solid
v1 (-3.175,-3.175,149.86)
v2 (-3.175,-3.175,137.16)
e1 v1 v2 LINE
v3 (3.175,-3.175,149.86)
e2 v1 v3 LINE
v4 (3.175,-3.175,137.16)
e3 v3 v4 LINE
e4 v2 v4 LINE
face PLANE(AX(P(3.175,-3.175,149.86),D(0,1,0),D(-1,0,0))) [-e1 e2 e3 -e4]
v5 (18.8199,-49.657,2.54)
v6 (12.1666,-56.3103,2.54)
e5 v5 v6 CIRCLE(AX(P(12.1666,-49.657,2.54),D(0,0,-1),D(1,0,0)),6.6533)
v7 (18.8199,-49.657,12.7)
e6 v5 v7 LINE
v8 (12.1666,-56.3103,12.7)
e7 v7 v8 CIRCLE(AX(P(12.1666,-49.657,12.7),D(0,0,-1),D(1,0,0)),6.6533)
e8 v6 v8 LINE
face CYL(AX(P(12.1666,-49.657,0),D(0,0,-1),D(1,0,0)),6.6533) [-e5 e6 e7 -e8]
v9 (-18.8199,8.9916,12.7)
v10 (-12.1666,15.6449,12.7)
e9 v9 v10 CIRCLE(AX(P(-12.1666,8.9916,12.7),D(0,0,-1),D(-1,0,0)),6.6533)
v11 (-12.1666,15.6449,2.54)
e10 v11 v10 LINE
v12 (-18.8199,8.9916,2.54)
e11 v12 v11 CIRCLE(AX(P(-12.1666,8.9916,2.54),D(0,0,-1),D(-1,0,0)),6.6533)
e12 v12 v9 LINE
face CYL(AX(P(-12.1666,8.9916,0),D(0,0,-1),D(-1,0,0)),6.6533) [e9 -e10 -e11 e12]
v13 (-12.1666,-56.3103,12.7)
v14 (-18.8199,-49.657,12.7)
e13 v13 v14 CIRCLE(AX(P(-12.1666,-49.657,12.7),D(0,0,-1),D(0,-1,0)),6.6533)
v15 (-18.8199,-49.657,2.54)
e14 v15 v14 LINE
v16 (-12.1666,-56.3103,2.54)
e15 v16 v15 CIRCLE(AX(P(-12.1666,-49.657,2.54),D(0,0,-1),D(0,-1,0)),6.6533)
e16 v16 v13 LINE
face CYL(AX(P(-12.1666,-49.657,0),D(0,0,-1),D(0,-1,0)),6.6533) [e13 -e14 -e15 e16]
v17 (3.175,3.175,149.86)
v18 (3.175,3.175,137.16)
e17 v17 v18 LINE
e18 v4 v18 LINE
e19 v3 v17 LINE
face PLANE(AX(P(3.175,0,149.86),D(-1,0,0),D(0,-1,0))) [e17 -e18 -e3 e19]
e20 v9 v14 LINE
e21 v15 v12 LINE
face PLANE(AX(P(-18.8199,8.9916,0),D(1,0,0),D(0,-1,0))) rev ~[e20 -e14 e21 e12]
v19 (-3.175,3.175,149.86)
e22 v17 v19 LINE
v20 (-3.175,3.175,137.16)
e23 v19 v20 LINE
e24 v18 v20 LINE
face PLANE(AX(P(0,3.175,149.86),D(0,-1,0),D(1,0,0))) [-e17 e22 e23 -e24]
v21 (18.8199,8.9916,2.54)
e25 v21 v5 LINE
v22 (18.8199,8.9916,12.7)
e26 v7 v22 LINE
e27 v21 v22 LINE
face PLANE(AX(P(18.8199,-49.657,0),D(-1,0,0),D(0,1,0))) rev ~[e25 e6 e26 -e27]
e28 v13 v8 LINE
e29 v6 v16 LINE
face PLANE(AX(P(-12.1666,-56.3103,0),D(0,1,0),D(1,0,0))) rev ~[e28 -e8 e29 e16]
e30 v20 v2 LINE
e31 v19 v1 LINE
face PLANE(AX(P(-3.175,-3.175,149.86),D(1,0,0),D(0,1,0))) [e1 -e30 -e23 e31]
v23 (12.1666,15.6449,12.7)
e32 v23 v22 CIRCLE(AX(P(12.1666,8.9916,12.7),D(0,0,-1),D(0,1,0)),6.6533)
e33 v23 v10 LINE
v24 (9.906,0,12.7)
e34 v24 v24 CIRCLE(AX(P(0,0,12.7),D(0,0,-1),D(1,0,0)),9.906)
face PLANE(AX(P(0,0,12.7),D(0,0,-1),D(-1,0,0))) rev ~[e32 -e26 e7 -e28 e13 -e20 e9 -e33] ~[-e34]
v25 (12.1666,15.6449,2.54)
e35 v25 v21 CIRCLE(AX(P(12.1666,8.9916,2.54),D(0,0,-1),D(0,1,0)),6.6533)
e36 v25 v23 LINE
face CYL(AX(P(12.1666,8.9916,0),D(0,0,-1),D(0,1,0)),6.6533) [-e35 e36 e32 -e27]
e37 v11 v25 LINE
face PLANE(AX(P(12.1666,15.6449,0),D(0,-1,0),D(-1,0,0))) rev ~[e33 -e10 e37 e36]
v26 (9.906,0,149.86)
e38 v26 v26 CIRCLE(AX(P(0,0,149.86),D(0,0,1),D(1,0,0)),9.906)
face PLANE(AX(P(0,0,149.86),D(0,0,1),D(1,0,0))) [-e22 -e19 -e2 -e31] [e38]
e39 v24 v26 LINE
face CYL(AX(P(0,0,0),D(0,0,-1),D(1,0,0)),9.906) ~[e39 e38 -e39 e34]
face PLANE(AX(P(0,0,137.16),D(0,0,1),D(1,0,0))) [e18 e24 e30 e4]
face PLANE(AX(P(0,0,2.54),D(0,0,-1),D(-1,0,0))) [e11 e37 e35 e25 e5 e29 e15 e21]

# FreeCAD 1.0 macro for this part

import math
import FreeCAD as App
import Part
import Sketcher
from FreeCAD import Vector
Q = App.Units.Quantity


def edges_at(feature, points):
    """Names of the edges that pass closest to the given points."""
    edges = feature.Shape.Edges
    near = lambda p: min(range(len(edges)), key=lambda i: edges[i].distToShape(Part.Vertex(*p))[0])
    return sorted({f"Edge{near(p) + 1}" for p in points})

doc = App.newDocument("Part")
body = doc.addObject("PartDesign::Body", "Body")

sketch1 = body.newObject("Sketcher::SketchObject", "Sketch")
sketch1.AttachmentSupport = (doc.getObject("XY_Plane"), [""])
sketch1.MapMode = "FlatFace"
sketch1.addGeometry(Part.Circle(Vector(0, 0, 0), Vector(0, 0, 1), 9.906), False)
sketch1.addConstraint([
    Sketcher.Constraint("Coincident", 0, 3, -1, 1),
    Sketcher.Constraint("Diameter", 0, Q("0.78 in")),
])
pad1 = body.newObject("PartDesign::Pad", "Pad")
pad1.Profile = sketch1
pad1.Length = Q("5.9 in")

sketch2 = body.newObject("Sketcher::SketchObject", "Sketch001")
sketch2.AttachmentSupport = (doc.getObject("XY_Plane"), [""])
sketch2.MapMode = "FlatFace"
sketch2.AttachmentOffset = App.Placement(Vector(0, 0, 5.9 * 25.4), App.Rotation())
sketch2.addGeometry([
    Part.LineSegment(Vector(3.175, -3.175, 0), Vector(3.175, 3.175, 0)),
    Part.LineSegment(Vector(3.175, 3.175, 0), Vector(-3.175, 3.175, 0)),
    Part.LineSegment(Vector(-3.175, 3.175, 0), Vector(-3.175, -3.175, 0)),
    Part.LineSegment(Vector(-3.175, -3.175, 0), Vector(3.175, -3.175, 0)),
], False)
sketch2.addConstraint([
    Sketcher.Constraint("Coincident", 0, 2, 1, 1),
    Sketcher.Constraint("Coincident", 1, 2, 2, 1),
    Sketcher.Constraint("Coincident", 2, 2, 3, 1),
    Sketcher.Constraint("Coincident", 3, 2, 0, 1),
    Sketcher.Constraint("Vertical", 0),
    Sketcher.Constraint("Horizontal", 1),
    Sketcher.Constraint("Vertical", 2),
    Sketcher.Constraint("Horizontal", 3),
    Sketcher.Constraint("Symmetric", 0, 2, 2, 2, -1, 1),
    Sketcher.Constraint("Equal", 3, 0),
    Sketcher.Constraint("DistanceX", 1, 2, 1, 1, Q("0.25 in")),
])
pocket1 = body.newObject("PartDesign::Pocket", "Pocket")
pocket1.Profile = sketch2
pocket1.Length = Q("0.5 in")

sketch3 = body.newObject("Sketcher::SketchObject", "Sketch002")
sketch3.AttachmentSupport = (doc.getObject("XY_Plane"), [""])
sketch3.MapMode = "FlatFace"
sketch3.addGeometry([
    Part.LineSegment(Vector(-25.4, 25.4, 0), Vector(25.4, 25.4, 0)),
    Part.LineSegment(Vector(25.4, 25.4, 0), Vector(25.4, -25.4, 0)),
    Part.LineSegment(Vector(25.4, -25.4, 0), Vector(-25.4, -25.4, 0)),
    Part.LineSegment(Vector(-25.4, -25.4, 0), Vector(-25.4, 25.4, 0)),
    Part.ArcOfCircle(Part.Circle(Vector(0, 0, 0), Vector(0, 0, 1), 9.906), math.radians(90), math.radians(360)),
    Part.LineSegment(Vector(9.906, 0, 0), Vector(0, 0, 0)),
    Part.LineSegment(Vector(0, 0, 0), Vector(0, 9.906, 0)),
], False)
sketch3.addConstraint([
    Sketcher.Constraint("Coincident", 0, 2, 1, 1),
    Sketcher.Constraint("Coincident", 1, 2, 2, 1),
    Sketcher.Constraint("Coincident", 2, 2, 3, 1),
    Sketcher.Constraint("Coincident", 3, 2, 0, 1),
    Sketcher.Constraint("Coincident", 4, 2, 5, 1),
    Sketcher.Constraint("Coincident", 5, 2, 6, 1),
    Sketcher.Constraint("Coincident", 6, 2, 4, 1),
    Sketcher.Constraint("Horizontal", 0),
    Sketcher.Constraint("Vertical", 1),
    Sketcher.Constraint("Horizontal", 2),
    Sketcher.Constraint("Vertical", 3),
    Sketcher.Constraint("Horizontal", 5),
    Sketcher.Constraint("Vertical", 6),
    Sketcher.Constraint("Coincident", 4, 3, -1, 1),
    Sketcher.Constraint("Coincident", 5, 2, -1, 1),
    Sketcher.Constraint("Symmetric", 0, 2, 2, 2, -1, 1),
    Sketcher.Constraint("Equal", 2, 1),
    Sketcher.Constraint("DistanceX", 0, 1, 0, 2, Q("2 in")),
    Sketcher.Constraint("Radius", 4, Q("0.39 in")),
])
pad2 = body.newObject("PartDesign::Pad", "Pad001")
pad2.Profile = sketch3
pad2.Length = Q("0.5 in")

sketch4 = body.newObject("Sketcher::SketchObject", "Sketch003")
sketch4.AttachmentSupport = (doc.getObject("XZ_Plane"), [""])
sketch4.MapMode = "FlatFace"
sketch4.AttachmentOffset = App.Placement(Vector(0, 0, -1 * 25.4), App.Rotation())
sketch4.addGeometry([
    Part.LineSegment(Vector(-25.4, 0, 0), Vector(-25.4, 12.7, 0)),
    Part.LineSegment(Vector(-25.4, 12.7, 0), Vector(25.4, 12.7, 0)),
    Part.LineSegment(Vector(25.4, 12.7, 0), Vector(25.4, 0, 0)),
    Part.LineSegment(Vector(25.4, 0, 0), Vector(-25.4, 0, 0)),
], False)
sketch4.addConstraint([
    Sketcher.Constraint("Coincident", 0, 2, 1, 1),
    Sketcher.Constraint("Coincident", 1, 2, 2, 1),
    Sketcher.Constraint("Coincident", 2, 2, 3, 1),
    Sketcher.Constraint("Coincident", 3, 2, 0, 1),
    Sketcher.Constraint("Vertical", 0),
    Sketcher.Constraint("Horizontal", 1),
    Sketcher.Constraint("Vertical", 2),
    Sketcher.Constraint("Horizontal", 3),
    Sketcher.Constraint("Symmetric", 2, 2, 3, 2, -1, 1),
    Sketcher.Constraint("DistanceX", 1, 1, 1, 2, Q("2 in")),
    Sketcher.Constraint("DistanceY", 0, 1, 0, 2, Q("0.5 in")),
])
pocket2 = body.newObject("PartDesign::Pocket", "Pocket001")
pocket2.Profile = sketch4
pocket2.Length = Q("0.25 in")
pocket2.Reversed = True

sketch5 = body.newObject("Sketcher::SketchObject", "Sketch004")
sketch5.AttachmentSupport = (doc.getObject("XY_Plane"), [""])
sketch5.MapMode = "FlatFace"
sketch5.addGeometry([
    Part.LineSegment(Vector(-25.4, -31.75, 0), Vector(-25.4, -25.4, 0)),
    Part.LineSegment(Vector(-25.4, -25.4, 0), Vector(25.4, -25.4, 0)),
    Part.LineSegment(Vector(25.4, -25.4, 0), Vector(25.4, -31.75, 0)),
    Part.LineSegment(Vector(25.4, -31.75, 0), Vector(-25.4, -31.75, 0)),
], False)
sketch5.addConstraint([
    Sketcher.Constraint("Coincident", 0, 2, 1, 1),
    Sketcher.Constraint("Coincident", 1, 2, 2, 1),
    Sketcher.Constraint("Coincident", 2, 2, 3, 1),
    Sketcher.Constraint("Coincident", 3, 2, 0, 1),
    Sketcher.Constraint("Vertical", 0),
    Sketcher.Constraint("Horizontal", 1),
    Sketcher.Constraint("Vertical", 2),
    Sketcher.Constraint("Horizontal", 3),
    Sketcher.Constraint("DistanceX", 1, 1, 1, 2, Q("2 in")),
    Sketcher.Constraint("DistanceX", 0, 2, -1, 1, Q("1 in")),
    Sketcher.Constraint("DistanceY", 0, 2, -1, 1, Q("1 in")),
    Sketcher.Constraint("DistanceY", 0, 1, 0, 2, Q("0.25 in")),
])
pad3 = body.newObject("PartDesign::Pad", "Pad002")
pad3.Profile = sketch5
pad3.Length = Q("0.5 in")

sketch6 = body.newObject("Sketcher::SketchObject", "Sketch005")
sketch6.AttachmentSupport = (doc.getObject("XY_Plane"), [""])
sketch6.MapMode = "FlatFace"
sketch6.AttachmentOffset = App.Placement(Vector(0, 0, 0.5 * 25.4), App.Rotation())
sketch6.addGeometry([
    Part.LineSegment(Vector(19.7866, 16.6116, 0), Vector(-19.7866, 16.6116, 0)),
    Part.LineSegment(Vector(-19.7866, 16.6116, 0), Vector(-19.7866, -57.277, 0)),
    Part.LineSegment(Vector(-19.7866, -57.277, 0), Vector(19.7866, -57.277, 0)),
    Part.LineSegment(Vector(19.7866, -57.277, 0), Vector(19.7866, 16.6116, 0)),
    Part.ArcOfCircle(Part.Circle(Vector(0, 0, 0), Vector(0, 0, 1), 9.906), math.radians(-90), math.radians(90)),
    Part.LineSegment(Vector(0, -9.906, 0), Vector(0, 9.906, 0)),
], False)
sketch6.addConstraint([
    Sketcher.Constraint("Coincident", 0, 2, 1, 1),
    Sketcher.Constraint("Coincident", 1, 2, 2, 1),
    Sketcher.Constraint("Coincident", 2, 2, 3, 1),
    Sketcher.Constraint("Coincident", 3, 2, 0, 1),
    Sketcher.Constraint("Coincident", 4, 1, 5, 1),
    Sketcher.Constraint("Coincident", 5, 2, 4, 2),
    Sketcher.Constraint("Horizontal", 0),
    Sketcher.Constraint("Vertical", 1),
    Sketcher.Constraint("Horizontal", 2),
    Sketcher.Constraint("Vertical", 3),
    Sketcher.Constraint("Vertical", 5),
    Sketcher.Constraint("Coincident", 4, 3, -1, 1),
    Sketcher.Constraint("PointOnObject", 4, 1, -2),
    Sketcher.Constraint("DistanceX", 0, 2, 0, 1, Q("1.558 in")),
    Sketcher.Constraint("DistanceY", 1, 2, 1, 1, Q("2.909 in")),
    Sketcher.Constraint("Radius", 4, Q("0.39 in")),
    Sketcher.Constraint("DistanceX", 0, 2, -1, 1, Q("0.779 in")),
    Sketcher.Constraint("DistanceY", 5, 2, 0, 2, Q("0.264 in")),
])
pad4 = body.newObject("PartDesign::Pad", "Pad003")
pad4.Profile = sketch6
pad4.Length = Q("2 in")
pad4.Reversed = True

sketch7 = body.newObject("Sketcher::SketchObject", "Sketch006")
sketch7.AttachmentSupport = (doc.getObject("XY_Plane"), [""])
sketch7.MapMode = "FlatFace"
sketch7.addGeometry([
    Part.LineSegment(Vector(25.4, -31.75, 0), Vector(19.7866, -31.75, 0)),
    Part.LineSegment(Vector(19.7866, -31.75, 0), Vector(19.7866, 16.6116, 0)),
    Part.LineSegment(Vector(19.7866, 16.6116, 0), Vector(-19.7866, 16.6116, 0)),
    Part.LineSegment(Vector(-19.7866, 16.6116, 0), Vector(-19.7866, -31.75, 0)),
    Part.LineSegment(Vector(-19.7866, -31.75, 0), Vector(-25.4, -31.75, 0)),
    Part.LineSegment(Vector(-25.4, -31.75, 0), Vector(-25.4, 19.05, 0)),
    Part.LineSegment(Vector(-25.4, 19.05, 0), Vector(25.4, 19.05, 0)),
    Part.LineSegment(Vector(25.4, 19.05, 0), Vector(25.4, -31.75, 0)),
], False)
sketch7.addConstraint([
    Sketcher.Constraint("Coincident", 0, 2, 1, 1),
    Sketcher.Constraint("Coincident", 1, 2, 2, 1),
    Sketcher.Constraint("Coincident", 2, 2, 3, 1),
    Sketcher.Constraint("Coincident", 3, 2, 4, 1),
    Sketcher.Constraint("Coincident", 4, 2, 5, 1),
    Sketcher.Constraint("Coincident", 5, 2, 6, 1),
    Sketcher.Constraint("Coincident", 6, 2, 7, 1),
    Sketcher.Constraint("Coincident", 7, 2, 0, 1),
    Sketcher.Constraint("Horizontal", 0),
    Sketcher.Constraint("Vertical", 1),
    Sketcher.Constraint("Horizontal", 2),
    Sketcher.Constraint("Vertical", 3),
    Sketcher.Constraint("Horizontal", 4),
    Sketcher.Constraint("Vertical", 5),
    Sketcher.Constraint("Horizontal", 6),
    Sketcher.Constraint("Vertical", 7),
    Sketcher.Constraint("Symmetric", 0, 2, 3, 2, -2),
    Sketcher.Constraint("Equal", 0, 4),
    Sketcher.Constraint("Equal", 6, 5),
    Sketcher.Constraint("DistanceX", 6, 1, 6, 2, Q("2 in")),
    Sketcher.Constraint("DistanceX", 0, 2, 0, 1, Q("0.221 in")),
    Sketcher.Constraint("DistanceY", 1, 1, 1, 2, Q("1.904 in")),
    Sketcher.Constraint("DistanceY", 0, 2, -1, 1, Q("1.25 in")),
])
pocket3 = body.newObject("PartDesign::Pocket", "Pocket002")
pocket3.Profile = sketch7
pocket3.Length = Q("2 in")
pocket3.Reversed = True
doc.recompute()

fillet = body.newObject("PartDesign::Fillet", "Fillet")
fillet.Base = (pocket3, edges_at(pocket3, [
    (19.787, 16.612, -12.7),
    (-19.787, 16.612, -12.7),
    (19.787, -57.277, -12.7),
    (-19.787, -57.277, -12.7),
]))
fillet.Radius = Q("0.25 in")

sketch8 = body.newObject("Sketcher::SketchObject", "Sketch007")
sketch8.AttachmentSupport = (doc.getObject("XY_Plane"), [""])
sketch8.MapMode = "FlatFace"
sketch8.AttachmentOffset = App.Placement(Vector(0, 0, -1.5 * 25.4), App.Rotation())
sketch8.addGeometry([
    Part.LineSegment(Vector(13.4366, -57.277, 0), Vector(-13.4366, -57.277, 0)),
    Part.ArcOfCircle(Part.Circle(Vector(-13.4366, -50.927, 0), Vector(0, 0, 1), 6.35), math.radians(180), math.radians(270)),
    Part.LineSegment(Vector(-19.7866, -50.927, 0), Vector(-19.7866, 10.2616, 0)),
    Part.ArcOfCircle(Part.Circle(Vector(-13.4366, 10.2616, 0), Vector(0, 0, 1), 6.35), math.radians(90), math.radians(180)),
    Part.LineSegment(Vector(-13.4366, 16.6116, 0), Vector(13.4366, 16.6116, 0)),
    Part.ArcOfCircle(Part.Circle(Vector(13.4366, 10.2616, 0), Vector(0, 0, 1), 6.35), math.radians(0), math.radians(90)),
    Part.LineSegment(Vector(19.7866, 10.2616, 0), Vector(19.7866, -50.927, 0)),
    Part.ArcOfCircle(Part.Circle(Vector(13.4366, -50.927, 0), Vector(0, 0, 1), 6.35), math.radians(-90), math.radians(0)),
    Part.LineSegment(Vector(0, 9.906, 0), Vector(0, -9.906, 0)),
    Part.ArcOfCircle(Part.Circle(Vector(0, 0, 0), Vector(0, 0, 1), 9.906), math.radians(-90), math.radians(90)),
], False)
sketch8.addConstraint([
    Sketcher.Constraint("Tangent", 0, 2, 1, 2),
    Sketcher.Constraint("Tangent", 1, 1, 2, 1),
    Sketcher.Constraint("Tangent", 2, 2, 3, 2),
    Sketcher.Constraint("Tangent", 3, 1, 4, 1),
    Sketcher.Constraint("Tangent", 4, 2, 5, 2),
    Sketcher.Constraint("Tangent", 5, 1, 6, 1),
    Sketcher.Constraint("Tangent", 6, 2, 7, 2),
    Sketcher.Constraint("Tangent", 7, 1, 0, 1),
    Sketcher.Constraint("Coincident", 8, 1, 9, 2),
    Sketcher.Constraint("Coincident", 9, 1, 8, 2),
    Sketcher.Constraint("Horizontal", 0),
    Sketcher.Constraint("Vertical", 2),
    Sketcher.Constraint("Horizontal", 4),
    Sketcher.Constraint("Vertical", 6),
    Sketcher.Constraint("Vertical", 8),
    Sketcher.Constraint("Coincident", 9, 3, -1, 1),
    Sketcher.Constraint("Equal", 1, 3),
    Sketcher.Constraint("Equal", 3, 5),
    Sketcher.Constraint("Equal", 5, 7),
    Sketcher.Constraint("PointOnObject", 8, 1, -2),
    Sketcher.Constraint("Radius", 1, Q("0.25 in")),
    Sketcher.Constraint("Radius", 9, Q("0.39 in")),
    Sketcher.Constraint("DistanceX", 0, 2, 0, 1, Q("1.058 in")),
    Sketcher.Constraint("DistanceY", 2, 1, 2, 2, Q("2.409 in")),
    Sketcher.Constraint("DistanceX", 1, 3, -1, 1, Q("0.529 in")),
    Sketcher.Constraint("DistanceY", 1, 3, -1, 1, Q("2.005 in")),
])
pocket4 = body.newObject("PartDesign::Pocket", "Pocket003")
pocket4.Profile = sketch8
pocket4.Length = Q("1 in")
pocket4.Reversed = True

sketch9 = body.newObject("Sketcher::SketchObject", "Sketch008")
sketch9.AttachmentSupport = (doc.getObject("XY_Plane"), [""])
sketch9.MapMode = "FlatFace"
sketch9.AttachmentOffset = App.Placement(Vector(0, 0, -0.5 * 25.4), App.Rotation())
sketch9.addGeometry([
    Part.LineSegment(Vector(0, -9.906, 0), Vector(0, 9.906, 0)),
    Part.ArcOfCircle(Part.Circle(Vector(0, 0, 0), Vector(0, 0, 1), 9.906), math.radians(-90), math.radians(90)),
], False)
sketch9.addConstraint([
    Sketcher.Constraint("Coincident", 0, 1, 1, 1),
    Sketcher.Constraint("Coincident", 1, 2, 0, 2),
    Sketcher.Constraint("Vertical", 0),
    Sketcher.Constraint("Coincident", 1, 3, -1, 1),
    Sketcher.Constraint("PointOnObject", 0, 1, -2),
    Sketcher.Constraint("Radius", 1, Q("0.39 in")),
])
pad5 = body.newObject("PartDesign::Pad", "Pad004")
pad5.Profile = sketch9
pad5.Length = Q("1 in")

sketch10 = body.newObject("Sketcher::SketchObject", "Sketch009")
sketch10.AttachmentSupport = (doc.getObject("XY_Plane"), [""])
sketch10.MapMode = "FlatFace"
sketch10.AttachmentOffset = App.Placement(Vector(0, 0, -0.5 * 25.4), App.Rotation())
sketch10.addGeometry([
    Part.LineSegment(Vector(-19.7866, -50.927, 0), Vector(-19.7866, 10.2616, 0)),
    Part.ArcOfCircle(Part.Circle(Vector(-13.4366, 10.2616, 0), Vector(0, 0, 1), 6.35), math.radians(90), math.radians(180)),
    Part.LineSegment(Vector(-13.4366, 16.6116, 0), Vector(13.4366, 16.6116, 0)),
    Part.ArcOfCircle(Part.Circle(Vector(13.4366, 10.2616, 0), Vector(0, 0, 1), 6.35), math.radians(0), math.radians(90)),
    Part.LineSegment(Vector(19.7866, 10.2616, 0), Vector(19.7866, -50.927, 0)),
    Part.ArcOfCircle(Part.Circle(Vector(13.4366, -50.927, 0), Vector(0, 0, 1), 6.35), math.radians(-90), math.radians(0)),
    Part.LineSegment(Vector(13.4366, -57.277, 0), Vector(-13.4366, -57.277, 0)),
    Part.ArcOfCircle(Part.Circle(Vector(-13.4366, -50.927, 0), Vector(0, 0, 1), 6.35), math.radians(180), math.radians(270)),
], False)
sketch10.addConstraint([
    Sketcher.Constraint("Tangent", 0, 2, 1, 2),
    Sketcher.Constraint("Tangent", 1, 1, 2, 1),
    Sketcher.Constraint("Tangent", 2, 2, 3, 2),
    Sketcher.Constraint("Tangent", 3, 1, 4, 1),
    Sketcher.Constraint("Tangent", 4, 2, 5, 2),
    Sketcher.Constraint("Tangent", 5, 1, 6, 1),
    Sketcher.Constraint("Tangent", 6, 2, 7, 2),
    Sketcher.Constraint("Tangent", 7, 1, 0, 1),
    Sketcher.Constraint("Vertical", 0),
    Sketcher.Constraint("Horizontal", 2),
    Sketcher.Constraint("Vertical", 4),
    Sketcher.Constraint("Horizontal", 6),
    Sketcher.Constraint("Equal", 1, 3),
    Sketcher.Constraint("Equal", 3, 5),
    Sketcher.Constraint("Equal", 5, 7),
    Sketcher.Constraint("Radius", 1, Q("0.25 in")),
    Sketcher.Constraint("DistanceX", 2, 1, 2, 2, Q("1.058 in")),
    Sketcher.Constraint("DistanceY", 0, 1, 0, 2, Q("2.409 in")),
    Sketcher.Constraint("DistanceX", 1, 3, -1, 1, Q("0.529 in")),
    Sketcher.Constraint("DistanceY", -1, 1, 1, 3, Q("0.404 in")),
])
pocket5 = body.newObject("PartDesign::Pocket", "Pocket004")
pocket5.Profile = sketch10
pocket5.Length = Q("0.5 in")
pocket5.Reversed = True

sketch11 = body.newObject("Sketcher::SketchObject", "Sketch010")
sketch11.AttachmentSupport = (doc.getObject("XY_Plane"), [""])
sketch11.MapMode = "FlatFace"
sketch11.addGeometry([
    Part.LineSegment(Vector(-19.7866, 16.6116, 0), Vector(19.7866, 16.6116, 0)),
    Part.LineSegment(Vector(19.7866, 16.6116, 0), Vector(19.7866, -57.277, 0)),
    Part.LineSegment(Vector(19.7866, -57.277, 0), Vector(-19.7866, -57.277, 0)),
    Part.LineSegment(Vector(-19.7866, -57.277, 0), Vector(-19.7866, 16.6116, 0)),
], False)
sketch11.addConstraint([
    Sketcher.Constraint("Coincident", 0, 2, 1, 1),
    Sketcher.Constraint("Coincident", 1, 2, 2, 1),
    Sketcher.Constraint("Coincident", 2, 2, 3, 1),
    Sketcher.Constraint("Coincident", 3, 2, 0, 1),
    Sketcher.Constraint("Horizontal", 0),
    Sketcher.Constraint("Vertical", 1),
    Sketcher.Constraint("Horizontal", 2),
    Sketcher.Constraint("Vertical", 3),
    Sketcher.Constraint("DistanceX", 0, 1, 0, 2, Q("1.558 in")),
    Sketcher.Constraint("DistanceY", 1, 2, 1, 1, Q("2.909 in")),
    Sketcher.Constraint("DistanceX", -1, 1, 0, 2, Q("0.779 in")),
    Sketcher.Constraint("DistanceY", -1, 1, 0, 2, Q("0.654 in")),
])
pad6 = body.newObject("PartDesign::Pad", "Pad005")
pad6.Profile = sketch11
pad6.Length = Q("0.5 in")
doc.recompute()

fillet2 = body.newObject("PartDesign::Fillet", "Fillet001")
fillet2.Base = (pad6, edges_at(pad6, [
    (19.787, 16.612, 6.35),
    (-19.787, 16.612, 6.35),
    (-19.787, -57.277, 6.35),
    (19.787, -57.277, 6.35),
]))
fillet2.Radius = Q("0.3 in")

sketch12 = body.newObject("Sketcher::SketchObject", "Sketch011")
sketch12.AttachmentSupport = (doc.getObject("XY_Plane"), [""])
sketch12.MapMode = "FlatFace"
sketch12.addGeometry([
    Part.LineSegment(Vector(19.7866, 8.9916, 0), Vector(19.7866, -49.657, 0)),
    Part.ArcOfCircle(Part.Circle(Vector(12.1666, -49.657, 0), Vector(0, 0, 1), 7.62), math.radians(-90), math.radians(0)),
    Part.LineSegment(Vector(12.1666, -57.277, 0), Vector(-12.1666, -57.277, 0)),
    Part.ArcOfCircle(Part.Circle(Vector(-12.1666, -49.657, 0), Vector(0, 0, 1), 7.62), math.radians(180), math.radians(270)),
    Part.LineSegment(Vector(-19.7866, -49.657, 0), Vector(-19.7866, 8.9916, 0)),
    Part.ArcOfCircle(Part.Circle(Vector(-12.1666, 8.9916, 0), Vector(0, 0, 1), 7.62), math.radians(90), math.radians(180)),
    Part.LineSegment(Vector(-12.1666, 16.6116, 0), Vector(12.1666, 16.6116, 0)),
    Part.ArcOfCircle(Part.Circle(Vector(12.1666, 8.9916, 0), Vector(0, 0, 1), 7.62), math.radians(0), math.radians(90)),
    Part.ArcOfCircle(Part.Circle(Vector(-12.1666, 8.9916, 0), Vector(0, 0, 1), 6.6533), math.radians(90), math.radians(180)),
    Part.LineSegment(Vector(-18.8199, 8.9916, 0), Vector(-18.8199, -49.657, 0)),
    Part.ArcOfCircle(Part.Circle(Vector(-12.1666, -49.657, 0), Vector(0, 0, 1), 6.6533), math.radians(180), math.radians(270)),
    Part.LineSegment(Vector(-12.1666, -56.3103, 0), Vector(12.1666, -56.3103, 0)),
    Part.ArcOfCircle(Part.Circle(Vector(12.1666, -49.657, 0), Vector(0, 0, 1), 6.6533), math.radians(-90), math.radians(0)),
    Part.LineSegment(Vector(18.8199, -49.657, 0), Vector(18.8199, 8.9916, 0)),
    Part.ArcOfCircle(Part.Circle(Vector(12.1666, 8.9916, 0), Vector(0, 0, 1), 6.6533), math.radians(0), math.radians(90)),
    Part.LineSegment(Vector(12.1666, 15.6449, 0), Vector(-12.1666, 15.6449, 0)),
], False)
sketch12.addConstraint([
    Sketcher.Constraint("Tangent", 0, 2, 1, 2),
    Sketcher.Constraint("Tangent", 1, 1, 2, 1),
    Sketcher.Constraint("Tangent", 2, 2, 3, 2),
    Sketcher.Constraint("Tangent", 3, 1, 4, 1),
    Sketcher.Constraint("Tangent", 4, 2, 5, 2),
    Sketcher.Constraint("Tangent", 5, 1, 6, 1),
    Sketcher.Constraint("Tangent", 6, 2, 7, 2),
    Sketcher.Constraint("Tangent", 7, 1, 0, 1),
    Sketcher.Constraint("Tangent", 8, 2, 9, 1),
    Sketcher.Constraint("Tangent", 9, 2, 10, 1),
    Sketcher.Constraint("Tangent", 10, 2, 11, 1),
    Sketcher.Constraint("Tangent", 11, 2, 12, 1),
    Sketcher.Constraint("Tangent", 12, 2, 13, 1),
    Sketcher.Constraint("Tangent", 13, 2, 14, 1),
    Sketcher.Constraint("Tangent", 14, 2, 15, 1),
    Sketcher.Constraint("Tangent", 15, 2, 8, 1),
    Sketcher.Constraint("Vertical", 0),
    Sketcher.Constraint("Horizontal", 2),
    Sketcher.Constraint("Vertical", 4),
    Sketcher.Constraint("Horizontal", 6),
    Sketcher.Constraint("Vertical", 9),
    Sketcher.Constraint("Horizontal", 11),
    Sketcher.Constraint("Vertical", 13),
    Sketcher.Constraint("Horizontal", 15),
    Sketcher.Constraint("Coincident", 8, 3, 5, 3),
    Sketcher.Constraint("Coincident", 10, 3, 3, 3),
    Sketcher.Constraint("Coincident", 12, 3, 1, 3),
    Sketcher.Constraint("Equal", 1, 3),
    Sketcher.Constraint("Equal", 3, 5),
    Sketcher.Constraint("Equal", 5, 7),
    Sketcher.Constraint("Equal", 12, 14),
    Sketcher.Constraint("Radius", 1, Q("0.3 in")),
    Sketcher.Constraint("DistanceX", 2, 2, 2, 1, Q("0.958 in")),
    Sketcher.Constraint("DistanceY", 0, 2, 0, 1, Q("2.309 in")),
    Sketcher.Constraint("Radius", 8, 6.6533),
    Sketcher.Constraint("DistanceX", -1, 1, 1, 3, Q("0.479 in")),
    Sketcher.Constraint("DistanceY", 1, 3, -1, 1, Q("1.955 in")),
])
pocket6 = body.newObject("PartDesign::Pocket", "Pocket005")
pocket6.Profile = sketch12
pocket6.Length = Q("0.5 in")
pocket6.Reversed = True

sketch13 = body.newObject("Sketcher::SketchObject", "Sketch012")
sketch13.AttachmentSupport = (doc.getObject("XY_Plane"), [""])
sketch13.MapMode = "FlatFace"
sketch13.addGeometry([
    Part.ArcOfCircle(Part.Circle(Vector(-12.1666, 8.9916, 0), Vector(0, 0, 1), 6.6533), math.radians(90), math.radians(180)),
    Part.LineSegment(Vector(-12.1666, 15.6449, 0), Vector(12.1666, 15.6449, 0)),
    Part.ArcOfCircle(Part.Circle(Vector(12.1666, 8.9916, 0), Vector(0, 0, 1), 6.6533), math.radians(0), math.radians(90)),
    Part.LineSegment(Vector(18.8199, 8.9916, 0), Vector(18.8199, -49.657, 0)),
    Part.ArcOfCircle(Part.Circle(Vector(12.1666, -49.657, 0), Vector(0, 0, 1), 6.6533), math.radians(-90), math.radians(0)),
    Part.LineSegment(Vector(12.1666, -56.3103, 0), Vector(-12.1666, -56.3103, 0)),
    Part.ArcOfCircle(Part.Circle(Vector(-12.1666, -49.657, 0), Vector(0, 0, 1), 6.6533), math.radians(180), math.radians(270)),
    Part.LineSegment(Vector(-18.8199, -49.657, 0), Vector(-18.8199, 8.9916, 0)),
], False)
sketch13.addConstraint([
    Sketcher.Constraint("Tangent", 0, 1, 1, 1),
    Sketcher.Constraint("Tangent", 1, 2, 2, 2),
    Sketcher.Constraint("Tangent", 2, 1, 3, 1),
    Sketcher.Constraint("Tangent", 3, 2, 4, 2),
    Sketcher.Constraint("Tangent", 4, 1, 5, 1),
    Sketcher.Constraint("Tangent", 5, 2, 6, 2),
    Sketcher.Constraint("Tangent", 6, 1, 7, 1),
    Sketcher.Constraint("Tangent", 7, 2, 0, 2),
    Sketcher.Constraint("Horizontal", 1),
    Sketcher.Constraint("Vertical", 3),
    Sketcher.Constraint("Horizontal", 5),
    Sketcher.Constraint("Vertical", 7),
    Sketcher.Constraint("Equal", 0, 2),
    Sketcher.Constraint("Equal", 2, 4),
    Sketcher.Constraint("Equal", 4, 6),
    Sketcher.Constraint("DistanceX", 1, 1, 1, 2, Q("0.958 in")),
    Sketcher.Constraint("DistanceY", 3, 2, 3, 1, Q("2.309 in")),
    Sketcher.Constraint("Radius", 0, 6.6533),
    Sketcher.Constraint("DistanceX", 0, 3, -1, 1, Q("0.479 in")),
    Sketcher.Constraint("DistanceY", -1, 1, 0, 3, Q("0.354 in")),
])
pocket7 = body.newObject("PartDesign::Pocket", "Pocket006")
pocket7.Profile = sketch13
pocket7.Length = Q("0.1 in")
pocket7.Reversed = True

doc.recompute()
